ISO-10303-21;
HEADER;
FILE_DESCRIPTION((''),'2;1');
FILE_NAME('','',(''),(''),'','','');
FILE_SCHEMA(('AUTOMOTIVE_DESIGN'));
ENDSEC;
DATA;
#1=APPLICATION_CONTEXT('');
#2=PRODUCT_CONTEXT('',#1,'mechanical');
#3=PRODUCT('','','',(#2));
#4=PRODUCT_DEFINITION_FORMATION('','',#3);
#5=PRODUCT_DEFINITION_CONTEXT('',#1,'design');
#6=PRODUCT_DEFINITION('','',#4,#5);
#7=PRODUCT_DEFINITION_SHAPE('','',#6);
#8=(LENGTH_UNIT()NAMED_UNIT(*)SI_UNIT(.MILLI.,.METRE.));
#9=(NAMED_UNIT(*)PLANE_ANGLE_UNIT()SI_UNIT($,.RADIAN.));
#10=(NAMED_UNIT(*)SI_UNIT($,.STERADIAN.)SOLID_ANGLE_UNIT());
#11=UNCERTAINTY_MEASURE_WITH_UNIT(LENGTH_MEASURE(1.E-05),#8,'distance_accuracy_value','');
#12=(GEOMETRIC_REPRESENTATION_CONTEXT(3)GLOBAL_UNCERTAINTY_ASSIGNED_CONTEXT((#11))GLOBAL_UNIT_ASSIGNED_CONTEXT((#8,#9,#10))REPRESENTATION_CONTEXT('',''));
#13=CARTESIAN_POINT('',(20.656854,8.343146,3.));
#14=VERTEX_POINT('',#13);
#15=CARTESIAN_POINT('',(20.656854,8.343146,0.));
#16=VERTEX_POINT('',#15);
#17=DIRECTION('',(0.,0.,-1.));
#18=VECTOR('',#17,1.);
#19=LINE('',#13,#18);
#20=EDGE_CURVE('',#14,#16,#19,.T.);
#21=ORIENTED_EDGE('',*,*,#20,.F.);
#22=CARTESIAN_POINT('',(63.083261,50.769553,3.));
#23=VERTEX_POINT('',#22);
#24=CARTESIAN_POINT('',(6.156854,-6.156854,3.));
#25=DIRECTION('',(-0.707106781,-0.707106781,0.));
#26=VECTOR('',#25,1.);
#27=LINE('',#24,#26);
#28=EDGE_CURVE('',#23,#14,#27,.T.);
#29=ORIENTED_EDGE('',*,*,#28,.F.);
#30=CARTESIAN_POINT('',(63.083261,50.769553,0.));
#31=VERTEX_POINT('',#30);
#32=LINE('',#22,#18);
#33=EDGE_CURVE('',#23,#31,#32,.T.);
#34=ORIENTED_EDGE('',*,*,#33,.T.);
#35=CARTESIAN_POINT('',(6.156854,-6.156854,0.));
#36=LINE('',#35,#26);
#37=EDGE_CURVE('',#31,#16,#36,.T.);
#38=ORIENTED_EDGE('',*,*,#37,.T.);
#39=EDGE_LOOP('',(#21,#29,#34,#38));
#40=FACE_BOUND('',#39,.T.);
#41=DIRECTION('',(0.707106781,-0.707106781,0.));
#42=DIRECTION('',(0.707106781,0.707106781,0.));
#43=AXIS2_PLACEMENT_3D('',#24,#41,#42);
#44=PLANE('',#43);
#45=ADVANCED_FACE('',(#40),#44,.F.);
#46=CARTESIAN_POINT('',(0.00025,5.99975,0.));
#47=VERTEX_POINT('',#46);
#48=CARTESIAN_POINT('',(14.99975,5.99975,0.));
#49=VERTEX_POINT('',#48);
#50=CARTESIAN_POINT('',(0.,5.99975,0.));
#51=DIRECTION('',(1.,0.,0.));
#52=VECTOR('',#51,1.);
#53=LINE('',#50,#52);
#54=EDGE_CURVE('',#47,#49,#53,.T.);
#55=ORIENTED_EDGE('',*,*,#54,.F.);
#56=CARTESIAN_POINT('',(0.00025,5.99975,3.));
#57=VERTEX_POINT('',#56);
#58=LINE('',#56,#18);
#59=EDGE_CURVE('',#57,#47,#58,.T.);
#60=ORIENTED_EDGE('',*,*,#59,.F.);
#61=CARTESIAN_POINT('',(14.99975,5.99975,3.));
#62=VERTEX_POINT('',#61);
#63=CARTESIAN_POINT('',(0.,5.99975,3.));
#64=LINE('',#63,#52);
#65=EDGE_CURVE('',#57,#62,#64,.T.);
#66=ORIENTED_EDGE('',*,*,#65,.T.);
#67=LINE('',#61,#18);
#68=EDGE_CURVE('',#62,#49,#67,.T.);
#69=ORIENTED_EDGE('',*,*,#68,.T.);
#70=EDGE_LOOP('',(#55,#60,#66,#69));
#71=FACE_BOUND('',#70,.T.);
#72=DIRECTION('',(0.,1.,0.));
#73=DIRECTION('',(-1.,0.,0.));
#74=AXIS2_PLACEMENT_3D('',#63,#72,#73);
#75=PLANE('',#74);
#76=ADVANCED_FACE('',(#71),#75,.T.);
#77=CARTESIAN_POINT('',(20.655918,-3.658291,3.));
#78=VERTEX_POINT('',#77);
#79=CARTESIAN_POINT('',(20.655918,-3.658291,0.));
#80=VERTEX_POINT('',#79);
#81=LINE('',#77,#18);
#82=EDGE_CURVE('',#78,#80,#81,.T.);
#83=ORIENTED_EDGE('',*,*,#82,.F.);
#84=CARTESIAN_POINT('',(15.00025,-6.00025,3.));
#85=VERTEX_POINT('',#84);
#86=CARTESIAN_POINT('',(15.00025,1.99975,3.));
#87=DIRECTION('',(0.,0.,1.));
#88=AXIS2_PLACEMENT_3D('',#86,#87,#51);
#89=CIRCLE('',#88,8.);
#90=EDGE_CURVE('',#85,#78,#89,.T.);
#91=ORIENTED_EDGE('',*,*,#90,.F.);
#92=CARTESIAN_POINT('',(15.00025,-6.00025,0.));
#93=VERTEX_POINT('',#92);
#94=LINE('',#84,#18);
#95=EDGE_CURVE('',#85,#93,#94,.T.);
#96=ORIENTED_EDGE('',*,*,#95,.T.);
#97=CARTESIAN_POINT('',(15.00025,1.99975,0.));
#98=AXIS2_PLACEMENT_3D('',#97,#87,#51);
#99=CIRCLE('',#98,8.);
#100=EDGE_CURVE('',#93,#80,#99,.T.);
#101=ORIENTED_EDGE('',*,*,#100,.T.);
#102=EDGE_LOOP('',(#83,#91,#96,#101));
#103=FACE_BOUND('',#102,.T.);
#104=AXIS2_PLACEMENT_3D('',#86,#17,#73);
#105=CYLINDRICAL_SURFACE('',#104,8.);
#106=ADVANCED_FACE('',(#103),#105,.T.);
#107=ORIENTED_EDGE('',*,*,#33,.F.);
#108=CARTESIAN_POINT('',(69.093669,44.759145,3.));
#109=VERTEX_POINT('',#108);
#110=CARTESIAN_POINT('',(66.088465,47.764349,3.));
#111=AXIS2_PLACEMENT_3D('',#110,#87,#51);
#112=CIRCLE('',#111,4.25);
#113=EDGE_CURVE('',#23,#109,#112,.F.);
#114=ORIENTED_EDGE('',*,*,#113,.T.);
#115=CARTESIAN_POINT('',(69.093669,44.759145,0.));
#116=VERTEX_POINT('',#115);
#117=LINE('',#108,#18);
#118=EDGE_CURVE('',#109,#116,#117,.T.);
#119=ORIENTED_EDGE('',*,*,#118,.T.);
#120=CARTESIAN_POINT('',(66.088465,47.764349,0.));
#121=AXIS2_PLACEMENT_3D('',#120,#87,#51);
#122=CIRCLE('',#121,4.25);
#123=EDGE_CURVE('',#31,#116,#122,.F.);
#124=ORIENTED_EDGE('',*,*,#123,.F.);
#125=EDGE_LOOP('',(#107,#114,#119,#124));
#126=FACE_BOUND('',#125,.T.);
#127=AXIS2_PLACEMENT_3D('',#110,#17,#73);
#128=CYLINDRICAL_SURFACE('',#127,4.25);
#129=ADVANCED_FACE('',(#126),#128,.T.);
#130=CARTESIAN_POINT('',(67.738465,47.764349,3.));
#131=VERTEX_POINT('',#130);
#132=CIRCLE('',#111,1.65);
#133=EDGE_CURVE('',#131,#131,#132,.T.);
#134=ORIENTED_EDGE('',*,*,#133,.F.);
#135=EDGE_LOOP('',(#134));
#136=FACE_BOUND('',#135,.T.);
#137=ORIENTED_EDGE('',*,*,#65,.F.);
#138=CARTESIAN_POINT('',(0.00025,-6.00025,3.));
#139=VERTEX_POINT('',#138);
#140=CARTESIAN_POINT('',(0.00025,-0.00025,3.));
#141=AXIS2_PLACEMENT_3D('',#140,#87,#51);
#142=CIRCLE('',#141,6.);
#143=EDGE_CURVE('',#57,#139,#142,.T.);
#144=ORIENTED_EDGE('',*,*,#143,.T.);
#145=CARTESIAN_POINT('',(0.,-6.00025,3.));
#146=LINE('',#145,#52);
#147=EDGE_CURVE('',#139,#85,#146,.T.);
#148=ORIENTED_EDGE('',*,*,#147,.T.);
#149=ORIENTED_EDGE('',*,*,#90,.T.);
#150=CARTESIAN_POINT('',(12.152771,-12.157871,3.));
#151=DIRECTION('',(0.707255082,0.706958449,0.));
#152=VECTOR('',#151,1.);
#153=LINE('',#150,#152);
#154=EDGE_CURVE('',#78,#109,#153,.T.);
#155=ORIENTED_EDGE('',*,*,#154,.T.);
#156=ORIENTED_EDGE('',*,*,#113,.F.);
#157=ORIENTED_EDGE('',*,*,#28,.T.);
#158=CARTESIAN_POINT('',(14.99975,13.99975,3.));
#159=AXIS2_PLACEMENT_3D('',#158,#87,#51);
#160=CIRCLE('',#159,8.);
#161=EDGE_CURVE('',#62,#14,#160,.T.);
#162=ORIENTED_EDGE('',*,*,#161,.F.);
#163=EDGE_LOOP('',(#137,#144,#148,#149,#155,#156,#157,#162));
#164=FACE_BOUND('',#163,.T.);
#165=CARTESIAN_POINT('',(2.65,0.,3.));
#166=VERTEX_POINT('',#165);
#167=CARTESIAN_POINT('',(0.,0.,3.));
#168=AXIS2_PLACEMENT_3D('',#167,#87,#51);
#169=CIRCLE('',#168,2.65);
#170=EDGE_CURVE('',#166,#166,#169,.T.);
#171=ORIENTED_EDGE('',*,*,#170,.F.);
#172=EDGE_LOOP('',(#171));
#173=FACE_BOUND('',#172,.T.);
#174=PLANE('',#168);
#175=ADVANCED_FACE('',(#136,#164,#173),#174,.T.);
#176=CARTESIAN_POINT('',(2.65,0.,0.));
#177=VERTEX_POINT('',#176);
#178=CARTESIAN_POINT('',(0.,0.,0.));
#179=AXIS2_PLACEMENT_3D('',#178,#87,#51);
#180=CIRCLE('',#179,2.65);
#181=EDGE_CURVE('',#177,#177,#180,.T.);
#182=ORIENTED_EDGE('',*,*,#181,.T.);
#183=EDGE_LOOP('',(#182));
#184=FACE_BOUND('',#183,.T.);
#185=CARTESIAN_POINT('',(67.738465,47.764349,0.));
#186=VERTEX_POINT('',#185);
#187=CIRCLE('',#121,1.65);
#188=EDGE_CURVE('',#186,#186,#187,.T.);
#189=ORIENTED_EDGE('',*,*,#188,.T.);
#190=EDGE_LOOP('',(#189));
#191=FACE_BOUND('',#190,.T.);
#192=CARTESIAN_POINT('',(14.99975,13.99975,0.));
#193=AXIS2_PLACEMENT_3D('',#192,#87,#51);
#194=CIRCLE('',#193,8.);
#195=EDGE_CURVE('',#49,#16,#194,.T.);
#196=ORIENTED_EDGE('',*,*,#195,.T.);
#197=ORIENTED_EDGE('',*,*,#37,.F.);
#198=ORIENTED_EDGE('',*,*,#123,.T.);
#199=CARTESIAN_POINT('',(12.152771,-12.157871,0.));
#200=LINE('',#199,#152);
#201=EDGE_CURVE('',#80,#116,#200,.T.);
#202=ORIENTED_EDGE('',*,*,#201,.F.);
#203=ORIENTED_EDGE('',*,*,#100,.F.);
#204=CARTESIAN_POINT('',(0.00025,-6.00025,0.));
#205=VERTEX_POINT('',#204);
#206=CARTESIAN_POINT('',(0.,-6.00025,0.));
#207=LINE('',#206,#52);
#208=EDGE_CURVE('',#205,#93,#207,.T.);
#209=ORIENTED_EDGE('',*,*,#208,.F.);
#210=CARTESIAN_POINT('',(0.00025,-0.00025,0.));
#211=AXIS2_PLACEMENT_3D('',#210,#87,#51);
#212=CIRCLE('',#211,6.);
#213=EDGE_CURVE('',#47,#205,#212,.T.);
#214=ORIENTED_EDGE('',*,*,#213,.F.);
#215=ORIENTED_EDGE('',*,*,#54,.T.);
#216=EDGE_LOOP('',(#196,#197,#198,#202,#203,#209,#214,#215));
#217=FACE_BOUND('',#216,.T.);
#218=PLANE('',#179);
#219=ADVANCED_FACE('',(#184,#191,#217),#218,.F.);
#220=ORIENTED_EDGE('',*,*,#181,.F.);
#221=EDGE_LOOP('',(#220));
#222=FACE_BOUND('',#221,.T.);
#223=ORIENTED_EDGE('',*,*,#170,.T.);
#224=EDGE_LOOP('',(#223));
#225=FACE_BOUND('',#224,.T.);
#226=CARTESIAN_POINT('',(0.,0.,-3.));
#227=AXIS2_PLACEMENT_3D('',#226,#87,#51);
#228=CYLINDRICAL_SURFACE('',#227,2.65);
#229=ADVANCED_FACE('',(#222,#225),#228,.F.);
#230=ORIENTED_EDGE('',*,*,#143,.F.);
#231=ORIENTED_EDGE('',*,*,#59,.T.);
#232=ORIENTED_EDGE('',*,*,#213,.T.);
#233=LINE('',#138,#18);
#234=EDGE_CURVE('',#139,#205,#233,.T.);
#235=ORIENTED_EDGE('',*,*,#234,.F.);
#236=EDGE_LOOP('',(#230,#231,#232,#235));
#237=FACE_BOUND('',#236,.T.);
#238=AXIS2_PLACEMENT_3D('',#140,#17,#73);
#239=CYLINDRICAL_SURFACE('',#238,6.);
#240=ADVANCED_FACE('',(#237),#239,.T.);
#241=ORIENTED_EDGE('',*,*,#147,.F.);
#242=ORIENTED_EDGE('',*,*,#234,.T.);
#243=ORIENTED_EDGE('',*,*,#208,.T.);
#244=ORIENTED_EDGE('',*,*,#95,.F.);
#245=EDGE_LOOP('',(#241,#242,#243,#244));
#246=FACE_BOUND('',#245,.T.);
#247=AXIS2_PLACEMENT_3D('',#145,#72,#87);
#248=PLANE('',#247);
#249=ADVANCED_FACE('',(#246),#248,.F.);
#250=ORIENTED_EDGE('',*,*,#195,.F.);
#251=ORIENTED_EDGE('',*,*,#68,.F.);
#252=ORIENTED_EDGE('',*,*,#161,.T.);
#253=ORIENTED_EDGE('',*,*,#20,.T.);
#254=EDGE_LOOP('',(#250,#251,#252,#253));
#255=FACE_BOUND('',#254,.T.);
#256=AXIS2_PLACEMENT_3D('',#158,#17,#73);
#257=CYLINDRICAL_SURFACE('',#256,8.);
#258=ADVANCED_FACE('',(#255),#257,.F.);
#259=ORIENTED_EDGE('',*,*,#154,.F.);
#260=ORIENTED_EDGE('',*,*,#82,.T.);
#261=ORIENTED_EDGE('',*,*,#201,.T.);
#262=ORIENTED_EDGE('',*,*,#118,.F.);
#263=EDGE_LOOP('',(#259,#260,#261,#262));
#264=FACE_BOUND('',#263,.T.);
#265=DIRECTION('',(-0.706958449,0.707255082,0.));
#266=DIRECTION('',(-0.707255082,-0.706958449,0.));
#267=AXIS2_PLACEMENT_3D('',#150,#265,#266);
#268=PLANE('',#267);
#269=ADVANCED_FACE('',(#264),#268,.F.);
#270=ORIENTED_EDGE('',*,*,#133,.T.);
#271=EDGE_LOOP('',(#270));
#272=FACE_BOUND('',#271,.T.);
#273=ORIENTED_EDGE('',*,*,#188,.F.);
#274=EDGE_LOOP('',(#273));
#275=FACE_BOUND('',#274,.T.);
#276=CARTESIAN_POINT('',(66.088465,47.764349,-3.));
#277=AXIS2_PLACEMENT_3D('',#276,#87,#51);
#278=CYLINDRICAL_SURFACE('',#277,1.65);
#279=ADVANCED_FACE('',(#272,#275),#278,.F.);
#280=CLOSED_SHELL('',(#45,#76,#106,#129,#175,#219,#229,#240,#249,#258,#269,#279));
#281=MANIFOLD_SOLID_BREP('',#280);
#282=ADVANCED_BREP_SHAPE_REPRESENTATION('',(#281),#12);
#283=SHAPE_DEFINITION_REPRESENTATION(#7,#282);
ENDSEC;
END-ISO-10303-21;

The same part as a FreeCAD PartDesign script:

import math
import FreeCAD as App
import Part
import Sketcher
Q = App.Units.Quantity

doc = App.newDocument("Part")
body = doc.addObject("PartDesign::Body", "Body")

# Sketch on XY plane
sketch1 = body.newObject("Sketcher::SketchObject", "Sketch")
sketch1.AttachmentSupport = (doc.getObject("XY_Plane"), [""])
sketch1.MapMode = "FlatFace"
sketch1.addGeometry([
    Part.LineSegment(App.Vector(15, 6, 0), App.Vector(0, 6, 0)),  # 0
    Part.ArcOfCircle(Part.Circle(App.Vector(0, 0, 0), App.Vector(0, 0, 1), 6), math.radians(90), math.radians(270)),  # 1
    Part.LineSegment(App.Vector(0, -6, 0), App.Vector(15, -6, 0)),  # 2
    Part.ArcOfCircle(Part.Circle(App.Vector(15, 2, 0), App.Vector(0, 0, 1), 8), math.radians(-90), math.radians(-45)),  # 3
    Part.LineSegment(App.Vector(20.7, -3.7, 0), App.Vector(69.1, 44.8, 0)),  # 4
    Part.ArcOfCircle(Part.Circle(App.Vector(66.1, 47.8, 0), App.Vector(0, 0, 1), 4.2), math.radians(-45), math.radians(135)),  # 5
    Part.LineSegment(App.Vector(63.1, 50.8, 0), App.Vector(20.7, 8.3, 0)),  # 6
    Part.ArcOfCircle(Part.Circle(App.Vector(15, 14, 0), App.Vector(0, 0, 1), 8), math.radians(-90), math.radians(-45)),  # 7
], False)
sketch1.addConstraint([
    Sketcher.Constraint("Tangent", 0, 2, 1, 1),
    Sketcher.Constraint("Tangent", 1, 2, 2, 1),
    Sketcher.Constraint("Tangent", 2, 2, 3, 1),
    Sketcher.Constraint("Tangent", 3, 2, 4, 1),
    Sketcher.Constraint("Coincident", 4, 2, 5, 1),
    Sketcher.Constraint("Tangent", 5, 2, 6, 1),
    Sketcher.Constraint("Coincident", 6, 2, 7, 2),
    Sketcher.Constraint("Tangent", 7, 1, 0, 1),
    Sketcher.Constraint("Horizontal", 0),
    Sketcher.Constraint("Horizontal", 2),
    Sketcher.Constraint("Equal", 3, 7),
    Sketcher.Constraint("Radius", 1, Q("6 mm")),
    Sketcher.Constraint("Radius", 3, Q("8 mm")),
    Sketcher.Constraint("DistanceX", 2, 1, 2, 2, Q("15 mm")),
    Sketcher.Constraint("Angle", 6, Q("-135 deg")),
    Sketcher.Constraint("Radius", 5, Q("4.25 mm")),
    Sketcher.Constraint("Distance", 6, Q("60 mm")),
    Sketcher.Constraint("DistanceX", 0, 2, 0, 1, Q("14.9995 mm")),
    Sketcher.Constraint("DistanceY", 3, 3, 5, 3, Q("45.764599 mm")),
    Sketcher.Constraint("Distance", 4, Q("68.486961 mm")),
    Sketcher.Constraint("DistanceX", -1, 1, 1, 3, Q("0.00025 mm")),
    Sketcher.Constraint("DistanceY", 1, 3, -1, 1, Q("0.00025 mm")),
])
pad1 = body.newObject("PartDesign::Pad", "Pad")
pad1.Profile = sketch1
pad1.Length = 3

# Sketch on XY plane
sketch2 = body.newObject("Sketcher::SketchObject", "Sketch001")
sketch2.AttachmentSupport = (doc.getObject("XY_Plane"), [""])
sketch2.MapMode = "FlatFace"
sketch2.AttachmentOffset = App.Placement(App.Vector(0, 0, 3), App.Rotation())
sketch2.addGeometry([
    Part.Circle(App.Vector(0, 0, 0), App.Vector(0, 0, 1), 2.6),
    Part.Circle(App.Vector(66.1, 47.8, 0), App.Vector(0, 0, 1), 1.6),
], False)
sketch2.addConstraint([
    Sketcher.Constraint("Coincident", 0, 3, -1, 1),
    Sketcher.Constraint("Diameter", 0, Q("5.3 mm")),
    Sketcher.Constraint("Diameter", 1, Q("3.3 mm")),
    Sketcher.Constraint("DistanceY", -1, 1, 1, 3, Q("47.764349 mm")),
    Sketcher.Constraint("DistanceX", -1, 1, 1, 3, Q("66.088465 mm")),
])
pocket1 = body.newObject("PartDesign::Pocket", "Pocket")
pocket1.Profile = sketch2
pocket1.Length = 6

doc.recompute()
